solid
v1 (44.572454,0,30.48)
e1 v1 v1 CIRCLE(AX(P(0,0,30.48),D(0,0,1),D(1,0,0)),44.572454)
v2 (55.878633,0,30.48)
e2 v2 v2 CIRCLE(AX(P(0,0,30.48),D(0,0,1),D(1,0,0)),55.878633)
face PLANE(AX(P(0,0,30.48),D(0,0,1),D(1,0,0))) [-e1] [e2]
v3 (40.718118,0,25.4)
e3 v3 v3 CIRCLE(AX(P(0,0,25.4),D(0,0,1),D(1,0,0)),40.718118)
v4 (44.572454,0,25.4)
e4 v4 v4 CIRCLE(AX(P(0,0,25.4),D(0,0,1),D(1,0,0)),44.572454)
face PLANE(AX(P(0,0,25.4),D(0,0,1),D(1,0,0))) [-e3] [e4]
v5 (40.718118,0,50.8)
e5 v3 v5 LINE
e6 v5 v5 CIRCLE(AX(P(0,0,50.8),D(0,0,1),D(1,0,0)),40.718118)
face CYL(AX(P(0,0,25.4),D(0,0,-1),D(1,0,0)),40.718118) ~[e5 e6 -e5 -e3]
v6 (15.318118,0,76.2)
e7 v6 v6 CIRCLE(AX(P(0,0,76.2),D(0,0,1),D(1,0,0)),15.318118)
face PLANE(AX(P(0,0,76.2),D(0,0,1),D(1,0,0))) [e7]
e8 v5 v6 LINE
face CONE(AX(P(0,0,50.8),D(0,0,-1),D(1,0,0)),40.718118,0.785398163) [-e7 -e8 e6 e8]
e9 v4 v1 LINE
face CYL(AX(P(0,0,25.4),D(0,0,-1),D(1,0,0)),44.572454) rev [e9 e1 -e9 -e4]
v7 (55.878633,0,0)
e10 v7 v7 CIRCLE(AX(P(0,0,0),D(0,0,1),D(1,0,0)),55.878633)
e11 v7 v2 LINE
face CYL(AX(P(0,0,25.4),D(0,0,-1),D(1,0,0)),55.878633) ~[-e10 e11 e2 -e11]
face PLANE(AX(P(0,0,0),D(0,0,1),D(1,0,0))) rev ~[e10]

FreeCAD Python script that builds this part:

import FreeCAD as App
import Part
import Sketcher
from FreeCAD import Vector
Q = App.Units.Quantity


def edges_at(feature, points):
    """Names of the edges that pass closest to the given points."""
    edges = feature.Shape.Edges
    near = lambda p: min(range(len(edges)), key=lambda i: edges[i].distToShape(Part.Vertex(*p))[0])
    return sorted({f"Edge{near(p) + 1}" for p in points})

doc = App.newDocument("Part")
body = doc.addObject("PartDesign::Body", "Body")

sketch1 = doc.addObject("Sketcher::SketchObject", "Sketch")
body.addObject(sketch1)
sketch1.AttachmentSupport = (doc.XY_Plane, [""])
sketch1.MapMode = "FlatFace"
sketch1.addGeometry(Part.Circle(Vector(0, 0, 0), Vector(0, 0, 1), 55.878633), False)
sketch1.addConstraint([
    Sketcher.Constraint("Coincident", 0, 3, -1, 1),
    Sketcher.Constraint("Diameter", 0, Q("111.757266 mm")),
])
pad1 = doc.addObject("PartDesign::Pad", "Pad")
body.addObject(pad1)
pad1.Profile = sketch1
pad1.Length = Q("1 in")

sketch2 = doc.addObject("Sketcher::SketchObject", "Sketch001")
body.addObject(sketch2)
sketch2.AttachmentSupport = (doc.XY_Plane, [""])
sketch2.MapMode = "FlatFace"
sketch2.AttachmentOffset = App.Placement(Vector(0, 0, 1 * 25.4), App.Rotation())
sketch2.addGeometry([
    Part.Circle(Vector(0, 0, 0), Vector(0, 0, 1), 55.878633),
    Part.Circle(Vector(0, 0, 0), Vector(0, 0, 1), 44.572454),
], False)
sketch2.addConstraint([
    Sketcher.Constraint("Coincident", 0, 3, -1, 1),
    Sketcher.Constraint("Coincident", 1, 3, -1, 1),
    Sketcher.Constraint("Diameter", 1, Q("89.144908 mm")),
    Sketcher.Constraint("Diameter", 0, Q("111.757266 mm")),
])
pad2 = doc.addObject("PartDesign::Pad", "Pad001")
body.addObject(pad2)
pad2.Profile = sketch2
pad2.Length = Q("0.2 in")

sketch3 = doc.addObject("Sketcher::SketchObject", "Sketch002")
body.addObject(sketch3)
sketch3.AttachmentSupport = (doc.XY_Plane, [""])
sketch3.MapMode = "FlatFace"
sketch3.AttachmentOffset = App.Placement(Vector(0, 0, 1 * 25.4), App.Rotation())
sketch3.addGeometry(Part.Circle(Vector(0, 0, 0), Vector(0, 0, 1), 40.718118), False)
sketch3.addConstraint([
    Sketcher.Constraint("Coincident", 0, 3, -1, 1),
    Sketcher.Constraint("Diameter", 0, Q("81.436236 mm")),
])
pad3 = doc.addObject("PartDesign::Pad", "Pad002")
body.addObject(pad3)
pad3.Profile = sketch3
pad3.Length = Q("2 in")
doc.recompute()

chamfer = doc.addObject("PartDesign::Chamfer", "Chamfer")
body.addObject(chamfer)
chamfer.Base = (pad3, edges_at(pad3, [(-40.718, 0, 76.2)]))
chamfer.Size = Q("1 in")

doc.recompute()
